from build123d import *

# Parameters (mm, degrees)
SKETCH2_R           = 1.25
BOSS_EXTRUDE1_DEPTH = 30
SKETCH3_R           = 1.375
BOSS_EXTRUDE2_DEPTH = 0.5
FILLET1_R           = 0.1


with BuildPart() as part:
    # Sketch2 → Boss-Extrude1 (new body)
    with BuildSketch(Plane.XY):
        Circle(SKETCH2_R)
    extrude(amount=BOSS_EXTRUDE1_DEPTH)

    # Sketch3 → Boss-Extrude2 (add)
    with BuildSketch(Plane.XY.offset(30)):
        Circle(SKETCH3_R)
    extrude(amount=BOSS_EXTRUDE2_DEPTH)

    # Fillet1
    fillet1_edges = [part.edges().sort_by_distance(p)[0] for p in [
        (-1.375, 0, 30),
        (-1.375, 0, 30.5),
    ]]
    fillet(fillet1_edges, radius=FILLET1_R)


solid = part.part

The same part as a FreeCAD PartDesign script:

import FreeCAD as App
import Part
import Sketcher

V = App.Vector
Q = App.Units.Quantity


def edges_at(feature, points):
    """Names of the edges that pass closest to the given points."""
    edges = feature.Shape.Edges
    near = lambda p: min(range(len(edges)), key=lambda i: edges[i].distToShape(Part.Vertex(*p))[0])
    return sorted({f"Edge{near(p) + 1}" for p in points})

doc = App.newDocument("Part")
params = doc.addObject("Spreadsheet::Sheet", "Params")
for row, (alias, value) in enumerate([
    ("sketch1_diameter", "2.5 mm"),
    ("pad1_length", "30 mm"),
    ("sketch2_diameter", "2.75 mm"),
    ("pad2_length", "0.5 mm"),
    ("fillet_radius", "0.1 mm"),
], start=1):
    params.set(f"A{row}", alias)
    params.set(f"B{row}", "=" + value)
    params.setAlias(f"B{row}", alias)

body = doc.addObject("PartDesign::Body", "Body")

# Sketch on XY plane
sketch1 = body.newObject("Sketcher::SketchObject", "Sketch")
sketch1.AttachmentSupport = (doc.getObject("XY_Plane"), [""])
sketch1.MapMode = "FlatFace"
sketch1.addGeometry(Part.Circle(V(0, 0, 0), V(0, 0, 1), 1.25), False)
sketch1.addConstraint(Sketcher.Constraint("Coincident", 0, 3, -1, 1))
sketch1.addConstraint(Sketcher.Constraint("Diameter", 0, Q("2.5 mm")))
sketch1.setExpression("Constraints[1]", "Params.sketch1_diameter")
pad1 = body.newObject("PartDesign::Pad", "Pad")
pad1.Profile = sketch1
pad1.setExpression("Length", "Params.pad1_length")

# Sketch on XY plane
sketch2 = body.newObject("Sketcher::SketchObject", "Sketch001")
sketch2.AttachmentSupport = (doc.getObject("XY_Plane"), [""])
sketch2.MapMode = "FlatFace"
sketch2.AttachmentOffset = App.Placement(V(0, 0, 30), App.Rotation())
sketch2.addGeometry(Part.Circle(V(0, 0, 0), V(0, 0, 1), 1.375), False)
sketch2.addConstraint(Sketcher.Constraint("Coincident", 0, 3, -1, 1))
sketch2.addConstraint(Sketcher.Constraint("Diameter", 0, Q("2.75 mm")))
sketch2.setExpression("Constraints[1]", "Params.sketch2_diameter")
pad2 = body.newObject("PartDesign::Pad", "Pad001")
pad2.Profile = sketch2
pad2.setExpression("Length", "Params.pad2_length")
doc.recompute()

fillet = body.newObject("PartDesign::Fillet", "Fillet")
fillet.Base = (pad2, edges_at(pad2, [(-1.375, 0, 30), (-1.375, 0, 30.5)]))
fillet.setExpression("Radius", "Params.fillet_radius")

doc.recompute()
